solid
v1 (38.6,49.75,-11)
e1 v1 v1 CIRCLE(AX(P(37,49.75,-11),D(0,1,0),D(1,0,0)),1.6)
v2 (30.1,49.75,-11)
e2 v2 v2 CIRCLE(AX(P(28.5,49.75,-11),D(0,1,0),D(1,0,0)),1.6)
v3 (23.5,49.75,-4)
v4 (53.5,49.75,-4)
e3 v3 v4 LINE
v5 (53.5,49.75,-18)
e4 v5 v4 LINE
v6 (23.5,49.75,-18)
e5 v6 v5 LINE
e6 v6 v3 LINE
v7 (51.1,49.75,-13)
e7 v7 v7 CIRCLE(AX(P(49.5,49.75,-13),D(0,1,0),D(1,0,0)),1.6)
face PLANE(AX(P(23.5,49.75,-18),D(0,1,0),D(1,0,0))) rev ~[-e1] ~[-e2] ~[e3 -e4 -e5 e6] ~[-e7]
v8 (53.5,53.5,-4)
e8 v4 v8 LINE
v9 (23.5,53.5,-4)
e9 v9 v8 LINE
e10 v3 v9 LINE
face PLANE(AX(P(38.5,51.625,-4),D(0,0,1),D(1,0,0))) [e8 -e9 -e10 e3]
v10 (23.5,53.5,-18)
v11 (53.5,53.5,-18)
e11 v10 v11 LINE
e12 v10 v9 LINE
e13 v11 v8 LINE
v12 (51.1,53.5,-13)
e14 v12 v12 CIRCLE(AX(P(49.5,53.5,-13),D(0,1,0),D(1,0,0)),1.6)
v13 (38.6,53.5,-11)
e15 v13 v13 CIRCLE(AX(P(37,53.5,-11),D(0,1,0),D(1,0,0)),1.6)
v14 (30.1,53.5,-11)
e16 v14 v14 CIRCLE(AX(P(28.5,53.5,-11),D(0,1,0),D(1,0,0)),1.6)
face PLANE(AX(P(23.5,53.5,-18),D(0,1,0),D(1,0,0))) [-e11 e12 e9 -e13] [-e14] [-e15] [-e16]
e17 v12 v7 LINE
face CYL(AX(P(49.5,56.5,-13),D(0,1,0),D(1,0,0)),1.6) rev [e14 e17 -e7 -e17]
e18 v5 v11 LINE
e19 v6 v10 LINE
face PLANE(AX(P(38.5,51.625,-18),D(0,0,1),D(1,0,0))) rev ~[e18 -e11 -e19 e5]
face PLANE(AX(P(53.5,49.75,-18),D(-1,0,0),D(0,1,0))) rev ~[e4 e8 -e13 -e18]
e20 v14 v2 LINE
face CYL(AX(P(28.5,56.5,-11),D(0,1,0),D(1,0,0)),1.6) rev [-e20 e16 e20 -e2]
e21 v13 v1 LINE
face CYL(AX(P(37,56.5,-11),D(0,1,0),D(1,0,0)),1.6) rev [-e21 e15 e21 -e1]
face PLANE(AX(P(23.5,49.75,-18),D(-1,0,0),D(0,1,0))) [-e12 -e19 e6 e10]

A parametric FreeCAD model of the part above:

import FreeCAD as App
import Part
import Sketcher


def add_polygon(sketch, points):
    """Adds a closed chain of lines whose ends are joined by coincident constraints."""
    first, n = sketch.GeometryCount, len(points)
    for a, b in zip(points, points[1:] + points[:1]):
        sketch.addGeometry(Part.LineSegment(App.Vector(*a, 0), App.Vector(*b, 0)), False)
    for i in range(n):
        sketch.addConstraint(Sketcher.Constraint("Coincident", first + i, 2, first + (i + 1) % n, 1))

doc = App.newDocument("Part")
body = doc.addObject("PartDesign::Body", "Body")

sketch1 = body.newObject("Sketcher::SketchObject", "Sketch")
sketch1.AttachmentSupport = (doc.getObject("XY_Plane"), [""])
sketch1.MapMode = "FlatFace"
sketch1.addGeometry(Part.Circle(App.Vector(0, 0, 0), App.Vector(0, 0, 1), 1.6), False)
sketch1.addConstraint([
    Sketcher.Constraint("Coincident", 0, 3, -1, 1),
    Sketcher.Constraint("Diameter", 0, 3.2),
])
pad1 = body.newObject("PartDesign::Pad", "Pad")
pad1.Profile = sketch1
pad1.Length = 20
body2 = doc.addObject("PartDesign::Body", "Body001")
doc.recompute()

body.Placement = App.Placement(App.Vector(0, 0, 0), App.Rotation(App.Vector(1, 0, 0), 90))
boolean = body2.newObject("PartDesign::Boolean", "Boolean")
boolean.Type = "Fuse"
boolean.addObjects([body])
body3 = doc.addObject("PartDesign::Body", "Body002")
doc.recompute()

body2.Placement = App.Placement(App.Vector(49.5, 56.5, -13), App.Rotation(App.Vector(0, 0, 1), 0))
boolean2 = body3.newObject("PartDesign::Boolean", "Boolean001")
boolean2.Type = "Fuse"
boolean2.addObjects([body2])
body4 = doc.addObject("PartDesign::Body", "Body003")

sketch2 = body4.newObject("Sketcher::SketchObject", "Sketch001")
sketch2.AttachmentSupport = (doc.getObject("XY_Plane003"), [""])
sketch2.MapMode = "FlatFace"
sketch2.addGeometry(Part.Circle(App.Vector(0, 0, 0), App.Vector(0, 0, 1), 1.6), False)
sketch2.addConstraint([
    Sketcher.Constraint("Coincident", 0, 3, -1, 1),
    Sketcher.Constraint("Diameter", 0, 3.2),
])
pad2 = body4.newObject("PartDesign::Pad", "Pad001")
pad2.Profile = sketch2
pad2.Length = 20
body5 = doc.addObject("PartDesign::Body", "Body004")
doc.recompute()

body4.Placement = App.Placement(App.Vector(0, 0, 0), App.Rotation(App.Vector(1, 0, 0), 90))
boolean3 = body5.newObject("PartDesign::Boolean", "Boolean002")
boolean3.Type = "Fuse"
boolean3.addObjects([body4])
body6 = doc.addObject("PartDesign::Body", "Body005")
doc.recompute()

body5.Placement = App.Placement(App.Vector(37, 56.5, -11), App.Rotation(App.Vector(0, 0, 1), 0))
boolean4 = body6.newObject("PartDesign::Boolean", "Boolean003")
boolean4.Type = "Fuse"
boolean4.addObjects([body5])
body7 = doc.addObject("PartDesign::Body", "Body006")

sketch3 = body7.newObject("Sketcher::SketchObject", "Sketch002")
sketch3.AttachmentSupport = (doc.getObject("XY_Plane006"), [""])
sketch3.MapMode = "FlatFace"
sketch3.addGeometry(Part.Circle(App.Vector(0, 0, 0), App.Vector(0, 0, 1), 1.6), False)
sketch3.addConstraint([
    Sketcher.Constraint("Coincident", 0, 3, -1, 1),
    Sketcher.Constraint("Diameter", 0, 3.2),
])
pad3 = body7.newObject("PartDesign::Pad", "Pad002")
pad3.Profile = sketch3
pad3.Length = 20
body8 = doc.addObject("PartDesign::Body", "Body007")
doc.recompute()

body7.Placement = App.Placement(App.Vector(0, 0, 0), App.Rotation(App.Vector(1, 0, 0), 90))
boolean5 = body8.newObject("PartDesign::Boolean", "Boolean004")
boolean5.Type = "Fuse"
boolean5.addObjects([body7])
body9 = doc.addObject("PartDesign::Body", "Body008")
body9.AllowCompound = True
doc.recompute()

body8.Placement = App.Placement(App.Vector(28.5, 56.5, -11), App.Rotation(App.Vector(0, 0, 1), 0))
boolean6 = body9.newObject("PartDesign::Boolean", "Boolean005")
boolean6.Type = "Fuse"
boolean6.addObjects([body8])
doc.recompute()

boolean7 = body9.newObject("PartDesign::Boolean", "Boolean006")
boolean7.Type = "Fuse"
boolean7.addObjects([body3])
doc.recompute()

boolean8 = body9.newObject("PartDesign::Boolean", "Boolean007")
boolean8.Type = "Fuse"
boolean8.addObjects([body6])
body10 = doc.addObject("PartDesign::Body", "Body009")

sketch4 = body10.newObject("Sketcher::SketchObject", "Sketch003")
sketch4.AttachmentSupport = (doc.getObject("XY_Plane009"), [""])
sketch4.MapMode = "FlatFace"
sketch4.AttachmentOffset = App.Placement(App.Vector(0, 0, -18), App.Rotation())
add_polygon(sketch4, [(23.5, 53.5), (23.5, 49.8), (53.5, 49.8), (53.5, 53.5)])
sketch4.addConstraint([
    Sketcher.Constraint("Vertical", 0),
    Sketcher.Constraint("Horizontal", 1),
    Sketcher.Constraint("Vertical", 2),
    Sketcher.Constraint("Horizontal", 3),
    Sketcher.Constraint("DistanceX", 1, 1, 1, 2, 30.0),
    Sketcher.Constraint("DistanceY", 0, 2, 0, 1, 3.75),
    Sketcher.Constraint("DistanceX", -1, 1, 0, 2, 23.5),
    Sketcher.Constraint("DistanceY", -1, 1, 2, 2, 53.5),
])
pad4 = body10.newObject("PartDesign::Pad", "Pad003")
pad4.Profile = sketch4
pad4.Length = 14
doc.recompute()

boolean9 = body10.newObject("PartDesign::Boolean", "Boolean008")
boolean9.Type = "Cut"
boolean9.addObjects([body9])

doc.recompute()
